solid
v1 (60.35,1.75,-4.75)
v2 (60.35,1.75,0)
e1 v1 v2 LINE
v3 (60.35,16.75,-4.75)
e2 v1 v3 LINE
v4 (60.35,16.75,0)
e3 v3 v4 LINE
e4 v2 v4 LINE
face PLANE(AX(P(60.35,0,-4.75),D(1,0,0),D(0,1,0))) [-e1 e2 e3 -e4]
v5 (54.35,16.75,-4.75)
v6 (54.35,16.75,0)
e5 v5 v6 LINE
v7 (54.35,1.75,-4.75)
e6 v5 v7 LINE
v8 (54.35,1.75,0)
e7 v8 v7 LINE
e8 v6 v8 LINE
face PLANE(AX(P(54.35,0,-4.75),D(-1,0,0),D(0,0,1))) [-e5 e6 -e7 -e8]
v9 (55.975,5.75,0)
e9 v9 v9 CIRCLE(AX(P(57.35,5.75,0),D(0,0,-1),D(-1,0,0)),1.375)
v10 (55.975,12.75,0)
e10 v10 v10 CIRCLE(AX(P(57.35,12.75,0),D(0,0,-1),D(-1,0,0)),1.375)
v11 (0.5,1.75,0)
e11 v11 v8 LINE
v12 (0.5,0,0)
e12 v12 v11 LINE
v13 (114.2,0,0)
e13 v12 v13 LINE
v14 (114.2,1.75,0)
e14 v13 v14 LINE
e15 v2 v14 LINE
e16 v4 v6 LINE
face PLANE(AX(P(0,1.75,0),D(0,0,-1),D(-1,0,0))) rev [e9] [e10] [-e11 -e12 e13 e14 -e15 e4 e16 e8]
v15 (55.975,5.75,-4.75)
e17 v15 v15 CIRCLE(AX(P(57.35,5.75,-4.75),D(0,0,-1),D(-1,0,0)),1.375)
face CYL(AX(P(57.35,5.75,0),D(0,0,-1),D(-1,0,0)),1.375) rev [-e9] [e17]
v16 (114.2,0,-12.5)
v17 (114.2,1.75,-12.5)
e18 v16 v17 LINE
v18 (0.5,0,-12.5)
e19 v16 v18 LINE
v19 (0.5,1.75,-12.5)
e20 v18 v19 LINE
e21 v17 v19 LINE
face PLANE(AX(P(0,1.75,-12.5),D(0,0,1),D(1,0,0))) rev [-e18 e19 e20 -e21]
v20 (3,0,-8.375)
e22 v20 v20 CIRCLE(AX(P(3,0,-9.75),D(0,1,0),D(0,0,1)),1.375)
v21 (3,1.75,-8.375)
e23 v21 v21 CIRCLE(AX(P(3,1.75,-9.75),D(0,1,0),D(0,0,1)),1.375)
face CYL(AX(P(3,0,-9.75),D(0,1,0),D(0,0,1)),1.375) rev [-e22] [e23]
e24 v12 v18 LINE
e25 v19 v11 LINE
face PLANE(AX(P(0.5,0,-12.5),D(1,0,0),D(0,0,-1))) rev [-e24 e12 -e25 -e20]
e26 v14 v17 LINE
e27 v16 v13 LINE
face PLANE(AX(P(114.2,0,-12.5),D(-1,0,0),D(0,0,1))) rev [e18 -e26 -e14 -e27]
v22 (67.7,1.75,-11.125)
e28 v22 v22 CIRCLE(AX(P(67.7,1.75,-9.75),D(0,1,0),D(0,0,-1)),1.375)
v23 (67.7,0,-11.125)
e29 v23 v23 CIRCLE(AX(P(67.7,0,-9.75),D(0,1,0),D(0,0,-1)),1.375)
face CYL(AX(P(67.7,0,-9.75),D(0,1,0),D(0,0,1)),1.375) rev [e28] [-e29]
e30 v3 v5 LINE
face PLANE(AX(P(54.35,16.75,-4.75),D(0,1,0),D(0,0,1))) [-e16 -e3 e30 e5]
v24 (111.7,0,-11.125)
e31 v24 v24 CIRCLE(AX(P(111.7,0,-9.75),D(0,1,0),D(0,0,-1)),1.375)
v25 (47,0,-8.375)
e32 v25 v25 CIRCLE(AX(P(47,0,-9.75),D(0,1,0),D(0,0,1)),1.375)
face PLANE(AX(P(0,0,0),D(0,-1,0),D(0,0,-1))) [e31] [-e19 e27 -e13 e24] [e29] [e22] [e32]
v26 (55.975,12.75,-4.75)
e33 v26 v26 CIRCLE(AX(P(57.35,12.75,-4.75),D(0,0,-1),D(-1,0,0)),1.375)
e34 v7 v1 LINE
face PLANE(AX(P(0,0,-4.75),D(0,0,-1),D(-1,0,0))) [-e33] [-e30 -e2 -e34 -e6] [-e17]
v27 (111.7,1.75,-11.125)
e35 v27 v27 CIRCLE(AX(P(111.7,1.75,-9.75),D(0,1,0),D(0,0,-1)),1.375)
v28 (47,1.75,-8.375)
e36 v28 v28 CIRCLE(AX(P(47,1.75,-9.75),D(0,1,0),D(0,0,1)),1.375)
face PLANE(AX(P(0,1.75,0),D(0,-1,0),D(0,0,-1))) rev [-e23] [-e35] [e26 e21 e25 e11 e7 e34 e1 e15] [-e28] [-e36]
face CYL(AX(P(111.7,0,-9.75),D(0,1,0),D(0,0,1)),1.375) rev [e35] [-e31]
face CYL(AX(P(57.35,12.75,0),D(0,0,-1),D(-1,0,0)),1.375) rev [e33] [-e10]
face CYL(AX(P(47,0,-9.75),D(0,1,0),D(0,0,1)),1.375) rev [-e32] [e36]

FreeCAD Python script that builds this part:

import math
import FreeCAD as App
import Part
import Sketcher

doc = App.newDocument("Part")
body = doc.addObject("PartDesign::Body", "Body")

# Sketch on XZ plane
sketch1 = body.newObject("Sketcher::SketchObject", "Sketch")
sketch1.AttachmentSupport = (doc.getObject("XZ_Plane"), [""])
sketch1.MapMode = "FlatFace"
sketch1.addGeometry([
    Part.LineSegment(App.Vector(0, -12.5, 0), App.Vector(0, 0, 0)),
    Part.LineSegment(App.Vector(0, 0, 0), App.Vector(114.7, 0, 0)),
    Part.LineSegment(App.Vector(114.7, 0, 0), App.Vector(114.7, -12.5, 0)),
    Part.LineSegment(App.Vector(114.7, -12.5, 0), App.Vector(0, -12.5, 0)),
], False)
sketch1.addConstraint([
    Sketcher.Constraint("Coincident", 0, 2, 1, 1),
    Sketcher.Constraint("Coincident", 1, 2, 2, 1),
    Sketcher.Constraint("Coincident", 2, 2, 3, 1),
    Sketcher.Constraint("Coincident", 3, 2, 0, 1),
    Sketcher.Constraint("Vertical", 0),
    Sketcher.Constraint("Horizontal", 1),
    Sketcher.Constraint("Vertical", 2),
    Sketcher.Constraint("Horizontal", 3),
    Sketcher.Constraint("Coincident", 0, 2, -1, 1),
    Sketcher.Constraint("DistanceX", 1, 1, 1, 2, 114.7),
    Sketcher.Constraint("DistanceY", 0, 1, 0, 2, 12.5),
])
pad1 = body.newObject("PartDesign::Pad", "Pad")
pad1.Profile = sketch1
pad1.Length = 1.75
pad1.Reversed = True

# Sketch on XZ plane
sketch2 = body.newObject("Sketcher::SketchObject", "Sketch001")
sketch2.AttachmentSupport = (doc.getObject("XZ_Plane"), [""])
sketch2.MapMode = "FlatFace"
sketch2.AttachmentOffset = App.Placement(App.Vector(0, 0, -1.75), App.Rotation())
sketch2.addGeometry([
    Part.Circle(App.Vector(3, -9.75, 0), App.Vector(0, 0, 1), 1.375),
    Part.Circle(App.Vector(47, -9.75, 0), App.Vector(0, 0, 1), 1.375),
    Part.Circle(App.Vector(67.7, -9.75, 0), App.Vector(0, 0, 1), 1.375),
    Part.Circle(App.Vector(111.7, -9.75, 0), App.Vector(0, 0, 1), 1.375),
], False)
sketch2.addConstraint([
    Sketcher.Constraint("Equal", 0, 1),
    Sketcher.Constraint("Equal", 1, 2),
    Sketcher.Constraint("Equal", 2, 3),
    Sketcher.Constraint("Horizontal", 0, 3, 1, 3),
    Sketcher.Constraint("Horizontal", 1, 3, 2, 3),
    Sketcher.Constraint("Horizontal", 2, 3, 3, 3),
    Sketcher.Constraint("Diameter", 0, 2.75),
    Sketcher.Constraint("DistanceX", -1, 1, 0, 3, 3.0),
    Sketcher.Constraint("DistanceX", -1, 1, 1, 3, 47.0),
    Sketcher.Constraint("DistanceX", 2, 3, 3, 3, 44.0),
    Sketcher.Constraint("DistanceX", -1, 1, 2, 3, 67.7),
    Sketcher.Constraint("DistanceY", 0, 3, -1, 1, 9.75),
])
pocket1 = body.newObject("PartDesign::Pocket", "Pocket")
pocket1.Profile = sketch2
pocket1.Length = 1.75
pocket1.Reversed = True

# Sketch on XY plane
sketch3 = body.newObject("Sketcher::SketchObject", "Sketch002")
sketch3.AttachmentSupport = (doc.getObject("XY_Plane"), [""])
sketch3.MapMode = "FlatFace"
sketch3.addGeometry([
    Part.LineSegment(App.Vector(114.7, 16.75, 0), App.Vector(114.7, 0, 0)),  # 0
    Part.LineSegment(App.Vector(114.7, 0, 0), App.Vector(120.7, 0, 0)),  # 1
    Part.LineSegment(App.Vector(120.7, 0, 0), App.Vector(120.7, 16.75, 0)),  # 2
    Part.LineSegment(App.Vector(120.7, 16.75, 0), App.Vector(114.7, 16.75, 0)),  # 3
    Part.LineSegment(App.Vector(-6, 16.75, 0), App.Vector(-6, 0, 0)),  # 4
    Part.LineSegment(App.Vector(-6, 0, 0), App.Vector(0, 0, 0)),  # 5
    Part.LineSegment(App.Vector(0, 0, 0), App.Vector(0, 16.75, 0)),  # 6
    Part.LineSegment(App.Vector(0, 16.75, 0), App.Vector(-6, 16.75, 0)),  # 7
    Part.LineSegment(App.Vector(54.35, 16.75, 0), App.Vector(54.35, 0, 0)),  # 8
    Part.LineSegment(App.Vector(54.35, 0, 0), App.Vector(60.35, 0, 0)),  # 9
    Part.LineSegment(App.Vector(60.35, 0, 0), App.Vector(60.35, 16.75, 0)),  # 10
    Part.LineSegment(App.Vector(60.35, 16.75, 0), App.Vector(54.35, 16.75, 0)),  # 11
], False)
sketch3.addConstraint([
    Sketcher.Constraint("Coincident", 0, 2, 1, 1),
    Sketcher.Constraint("Coincident", 1, 2, 2, 1),
    Sketcher.Constraint("Coincident", 2, 2, 3, 1),
    Sketcher.Constraint("Coincident", 3, 2, 0, 1),
    Sketcher.Constraint("Coincident", 4, 2, 5, 1),
    Sketcher.Constraint("Coincident", 5, 2, 6, 1),
    Sketcher.Constraint("Coincident", 6, 2, 7, 1),
    Sketcher.Constraint("Coincident", 7, 2, 4, 1),
    Sketcher.Constraint("Coincident", 8, 2, 9, 1),
    Sketcher.Constraint("Coincident", 9, 2, 10, 1),
    Sketcher.Constraint("Coincident", 10, 2, 11, 1),
    Sketcher.Constraint("Coincident", 11, 2, 8, 1),
    Sketcher.Constraint("Vertical", 0),
    Sketcher.Constraint("Horizontal", 1),
    Sketcher.Constraint("Vertical", 2),
    Sketcher.Constraint("Horizontal", 3),
    Sketcher.Constraint("Vertical", 4),
    Sketcher.Constraint("Horizontal", 5),
    Sketcher.Constraint("Vertical", 6),
    Sketcher.Constraint("Horizontal", 7),
    Sketcher.Constraint("Vertical", 8),
    Sketcher.Constraint("Horizontal", 9),
    Sketcher.Constraint("Vertical", 10),
    Sketcher.Constraint("Horizontal", 11),
    Sketcher.Constraint("Coincident", 5, 2, -1, 1),
    Sketcher.Constraint("PointOnObject", 0, 2, -1),
    Sketcher.Constraint("PointOnObject", 8, 2, -1),
    Sketcher.Constraint("Horizontal", 3, 2, 6, 2),
    Sketcher.Constraint("Horizontal", 7, 2, 10, 2),
    Sketcher.Constraint("Equal", 3, 5),
    Sketcher.Constraint("Equal", 7, 9),
    Sketcher.Constraint("DistanceX", 1, 1, 1, 2, 6.0),
    Sketcher.Constraint("DistanceY", 0, 2, 0, 1, 16.75),
    Sketcher.Constraint("DistanceX", -1, 1, 0, 2, 114.7),
    Sketcher.Constraint("DistanceX", -1, 1, 8, 2, 54.35),
])
pad2 = body.newObject("PartDesign::Pad", "Pad001")
pad2.Profile = sketch3
pad2.Length = 4.75
pad2.Reversed = True

# Sketch on XY plane
sketch4 = body.newObject("Sketcher::SketchObject", "Sketch003")
sketch4.AttachmentSupport = (doc.getObject("XY_Plane"), [""])
sketch4.MapMode = "FlatFace"
sketch4.AttachmentOffset = App.Placement(App.Vector(0, 0, -12.5), App.Rotation())
sketch4.addGeometry([
    Part.LineSegment(App.Vector(120.7, 1.75, 0), App.Vector(120.7, 0, 0)),  # 0
    Part.LineSegment(App.Vector(120.7, 0, 0), App.Vector(114.7, 0, 0)),  # 1
    Part.LineSegment(App.Vector(114.7, 0, 0), App.Vector(114.7, 1.75, 0)),  # 2
    Part.LineSegment(App.Vector(114.7, 1.75, 0), App.Vector(120.7, 1.75, 0)),  # 3
    Part.LineSegment(App.Vector(0, 1.75, 0), App.Vector(0, 0, 0)),  # 4
    Part.LineSegment(App.Vector(0, 0, 0), App.Vector(-6, 0, 0)),  # 5
    Part.LineSegment(App.Vector(-6, 0, 0), App.Vector(-6, 1.75, 0)),  # 6
    Part.LineSegment(App.Vector(-6, 1.75, 0), App.Vector(0, 1.75, 0)),  # 7
], False)
sketch4.addConstraint([
    Sketcher.Constraint("Coincident", 0, 2, 1, 1),
    Sketcher.Constraint("Coincident", 1, 2, 2, 1),
    Sketcher.Constraint("Coincident", 2, 2, 3, 1),
    Sketcher.Constraint("Coincident", 3, 2, 0, 1),
    Sketcher.Constraint("Coincident", 4, 2, 5, 1),
    Sketcher.Constraint("Coincident", 5, 2, 6, 1),
    Sketcher.Constraint("Coincident", 6, 2, 7, 1),
    Sketcher.Constraint("Coincident", 7, 2, 4, 1),
    Sketcher.Constraint("Vertical", 0),
    Sketcher.Constraint("Horizontal", 1),
    Sketcher.Constraint("Vertical", 2),
    Sketcher.Constraint("Horizontal", 3),
    Sketcher.Constraint("Vertical", 4),
    Sketcher.Constraint("Horizontal", 5),
    Sketcher.Constraint("Vertical", 6),
    Sketcher.Constraint("Horizontal", 7),
    Sketcher.Constraint("Coincident", 4, 2, -1, 1),
    Sketcher.Constraint("PointOnObject", 0, 2, -1),
    Sketcher.Constraint("Horizontal", 3, 2, 6, 2),
    Sketcher.Constraint("Equal", 3, 5),
    Sketcher.Constraint("DistanceX", 1, 2, 1, 1, 6.0),
    Sketcher.Constraint("DistanceY", 0, 2, 0, 1, 1.75),
    Sketcher.Constraint("DistanceX", -1, 1, 0, 2, 120.7),
])
pad3 = body.newObject("PartDesign::Pad", "Pad002")
pad3.Profile = sketch4
pad3.Length = 7.75

# Sketch on XY plane
sketch5 = body.newObject("Sketcher::SketchObject", "Sketch004")
sketch5.AttachmentSupport = (doc.getObject("XY_Plane"), [""])
sketch5.MapMode = "FlatFace"
sketch5.AttachmentOffset = App.Placement(App.Vector(0, 0, -4.75), App.Rotation())
sketch5.addGeometry([
    Part.Circle(App.Vector(57.35, 12.75, 0), App.Vector(0, 0, 1), 1.375),  # 0
    Part.Circle(App.Vector(57.35, 5.75, 0), App.Vector(0, 0, 1), 1.375),  # 1
    Part.Circle(App.Vector(117.7, 12.75, 0), App.Vector(0, 0, 1), 1.375),  # 2
    Part.Circle(App.Vector(117.7, 5.75, 0), App.Vector(0, 0, 1), 1.375),  # 3
    Part.Circle(App.Vector(-3, 5.75, 0), App.Vector(0, 0, 1), 1.375),  # 4
    Part.Circle(App.Vector(-3, 12.75, 0), App.Vector(0, 0, 1), 1.375),  # 5
], False)
sketch5.addConstraint([
    Sketcher.Constraint("Equal", 0, 1),
    Sketcher.Constraint("Equal", 1, 2),
    Sketcher.Constraint("Equal", 2, 3),
    Sketcher.Constraint("Equal", 3, 4),
    Sketcher.Constraint("Equal", 4, 5),
    Sketcher.Constraint("Horizontal", 0, 3, 2, 3),
    Sketcher.Constraint("Horizontal", 1, 3, 3, 3),
    Sketcher.Constraint("Horizontal", 3, 3, 4, 3),
    Sketcher.Constraint("Horizontal", 2, 3, 5, 3),
    Sketcher.Constraint("Vertical", 0, 3, 1, 3),
    Sketcher.Constraint("Vertical", 2, 3, 3, 3),
    Sketcher.Constraint("Vertical", 4, 3, 5, 3),
    Sketcher.Constraint("Diameter", 0, 2.75),
    Sketcher.Constraint("DistanceX", 4, 3, -1, 1, 3.0),
    Sketcher.Constraint("DistanceY", 1, 3, 0, 3, 7.0),
    Sketcher.Constraint("DistanceX", -1, 1, 2, 3, 117.7),
    Sketcher.Constraint("DistanceX", -1, 1, 0, 3, 57.35),
    Sketcher.Constraint("DistanceY", -1, 1, 0, 3, 12.75),
])
pocket2 = body.newObject("PartDesign::Pocket", "Pocket001")
pocket2.Profile = sketch5
pocket2.Length = 4.75
pocket2.Reversed = True

# Sketch on XZ plane
sketch6 = body.newObject("Sketcher::SketchObject", "Sketch005")
sketch6.AttachmentSupport = (doc.getObject("XZ_Plane"), [""])
sketch6.MapMode = "FlatFace"
sketch6.AttachmentOffset = App.Placement(App.Vector(0, 0, -1.75), App.Rotation())
sketch6.addGeometry([
    Part.Circle(App.Vector(120.95, -8.5675, 0), App.Vector(0, 0, 1), 3.25),
    Part.Circle(App.Vector(-6.25, -8.5675, 0), App.Vector(0, 0, 1), 3.25),
], False)
sketch6.addConstraint([
    Sketcher.Constraint("Equal", 0, 1),
    Sketcher.Constraint("Horizontal", 0, 3, 1, 3),
    Sketcher.Constraint("Diameter", 0, 6.5),
    Sketcher.Constraint("DistanceX", 1, 3, 0, 3, 127.2),
    Sketcher.Constraint("DistanceX", -1, 1, 0, 3, 120.95),
    Sketcher.Constraint("DistanceY", 0, 3, -1, 1, 8.5675),
])
pocket3 = body.newObject("PartDesign::Pocket", "Pocket002")
pocket3.Profile = sketch6
pocket3.Length = 10
pocket3.Reversed = True

# Sketch on XZ plane
sketch7 = body.newObject("Sketcher::SketchObject", "Sketch006")
sketch7.AttachmentSupport = (doc.getObject("XZ_Plane"), [""])
sketch7.MapMode = "FlatFace"
sketch7.AttachmentOffset = App.Placement(App.Vector(0, 0, -1.75), App.Rotation())
sketch7.addGeometry([
    Part.Circle(App.Vector(-6.25, -8.5675, 0), App.Vector(0, 0, 1), 3.25),  # 0
    Part.LineSegment(App.Vector(122.422972, -5.1942, 0), App.Vector(120.7, -5.32713, 0)),  # 1
    Part.ArcOfCircle(Part.Circle(App.Vector(120.95, -8.5675, 0), App.Vector(0, 0, 1), 3.25), math.radians(94.411726), math.radians(265.588274)),  # 2
    Part.LineSegment(App.Vector(120.7, -11.80787, 0), App.Vector(122.933227, -11.80787, 0)),  # 3
    Part.LineSegment(App.Vector(122.933227, -11.80787, 0), App.Vector(122.422972, -5.1942, 0)),  # 4
], False)
sketch7.addConstraint([
    Sketcher.Constraint("Tangent", 1, 2, 2, 1),
    Sketcher.Constraint("Coincident", 2, 2, 3, 1),
    Sketcher.Constraint("Coincident", 3, 2, 4, 1),
    Sketcher.Constraint("Coincident", 4, 2, 1, 1),
    Sketcher.Constraint("Horizontal", 3),
    Sketcher.Constraint("Equal", 0, 2),
    Sketcher.Constraint("Perpendicular", 1, 4),
    Sketcher.Constraint("Horizontal", 0, 3, 2, 3),
    Sketcher.Constraint("Vertical", 1, 2, 2, 2),
    Sketcher.Constraint("Diameter", 0, 6.5),
    Sketcher.Constraint("DistanceX", -1, 1, 1, 2, 120.7),
    Sketcher.Constraint("DistanceX", 0, 3, 2, 3, 127.2),
    Sketcher.Constraint("DistanceX", 0, 3, -1, 1, 6.25),
    Sketcher.Constraint("DistanceY", 0, 3, -1, 1, 8.5675),
    Sketcher.Constraint("DistanceY", 4, 2, -1, 1, 5.1942),
])
pocket4 = body.newObject("PartDesign::Pocket", "Pocket003")
pocket4.Profile = sketch7
pocket4.Length = 10

# Sketch on XZ plane
sketch8 = body.newObject("Sketcher::SketchObject", "Sketch007")
sketch8.AttachmentSupport = (doc.getObject("XZ_Plane"), [""])
sketch8.MapMode = "FlatFace"
sketch8.AttachmentOffset = App.Placement(App.Vector(0, 0, -1.75), App.Rotation())
sketch8.addGeometry([
    Part.LineSegment(App.Vector(114.2, -12.5, 0), App.Vector(114.2, 0, 0)),  # 0
    Part.LineSegment(App.Vector(114.2, 0, 0), App.Vector(120.7, 0, 0)),  # 1
    Part.LineSegment(App.Vector(120.7, 0, 0), App.Vector(120.7, -12.5, 0)),  # 2
    Part.LineSegment(App.Vector(120.7, -12.5, 0), App.Vector(114.2, -12.5, 0)),  # 3
    Part.LineSegment(App.Vector(-6, -12.5, 0), App.Vector(-6, 0, 0)),  # 4
    Part.LineSegment(App.Vector(-6, 0, 0), App.Vector(0.5, 0, 0)),  # 5
    Part.LineSegment(App.Vector(0.5, 0, 0), App.Vector(0.5, -12.5, 0)),  # 6
    Part.LineSegment(App.Vector(0.5, -12.5, 0), App.Vector(-6, -12.5, 0)),  # 7
], False)
sketch8.addConstraint([
    Sketcher.Constraint("Coincident", 0, 2, 1, 1),
    Sketcher.Constraint("Coincident", 1, 2, 2, 1),
    Sketcher.Constraint("Coincident", 2, 2, 3, 1),
    Sketcher.Constraint("Coincident", 3, 2, 0, 1),
    Sketcher.Constraint("Coincident", 4, 2, 5, 1),
    Sketcher.Constraint("Coincident", 5, 2, 6, 1),
    Sketcher.Constraint("Coincident", 6, 2, 7, 1),
    Sketcher.Constraint("Coincident", 7, 2, 4, 1),
    Sketcher.Constraint("Vertical", 0),
    Sketcher.Constraint("Horizontal", 1),
    Sketcher.Constraint("Vertical", 2),
    Sketcher.Constraint("Horizontal", 3),
    Sketcher.Constraint("Vertical", 4),
    Sketcher.Constraint("Horizontal", 5),
    Sketcher.Constraint("Vertical", 6),
    Sketcher.Constraint("Horizontal", 7),
    Sketcher.Constraint("PointOnObject", 0, 2, -1),
    Sketcher.Constraint("PointOnObject", 4, 2, -1),
    Sketcher.Constraint("Horizontal", 3, 2, 6, 2),
    Sketcher.Constraint("Equal", 3, 5),
    Sketcher.Constraint("DistanceX", 1, 1, 1, 2, 6.5),
    Sketcher.Constraint("DistanceY", 0, 1, 0, 2, 12.5),
    Sketcher.Constraint("DistanceX", 4, 2, -1, 1, 6.0),
    Sketcher.Constraint("DistanceX", -1, 1, 0, 2, 114.2),
])
pocket5 = body.newObject("PartDesign::Pocket", "Pocket004")
pocket5.Profile = sketch8
pocket5.Type = "ThroughAll"
pocket5.Midplane = True

doc.recompute()
